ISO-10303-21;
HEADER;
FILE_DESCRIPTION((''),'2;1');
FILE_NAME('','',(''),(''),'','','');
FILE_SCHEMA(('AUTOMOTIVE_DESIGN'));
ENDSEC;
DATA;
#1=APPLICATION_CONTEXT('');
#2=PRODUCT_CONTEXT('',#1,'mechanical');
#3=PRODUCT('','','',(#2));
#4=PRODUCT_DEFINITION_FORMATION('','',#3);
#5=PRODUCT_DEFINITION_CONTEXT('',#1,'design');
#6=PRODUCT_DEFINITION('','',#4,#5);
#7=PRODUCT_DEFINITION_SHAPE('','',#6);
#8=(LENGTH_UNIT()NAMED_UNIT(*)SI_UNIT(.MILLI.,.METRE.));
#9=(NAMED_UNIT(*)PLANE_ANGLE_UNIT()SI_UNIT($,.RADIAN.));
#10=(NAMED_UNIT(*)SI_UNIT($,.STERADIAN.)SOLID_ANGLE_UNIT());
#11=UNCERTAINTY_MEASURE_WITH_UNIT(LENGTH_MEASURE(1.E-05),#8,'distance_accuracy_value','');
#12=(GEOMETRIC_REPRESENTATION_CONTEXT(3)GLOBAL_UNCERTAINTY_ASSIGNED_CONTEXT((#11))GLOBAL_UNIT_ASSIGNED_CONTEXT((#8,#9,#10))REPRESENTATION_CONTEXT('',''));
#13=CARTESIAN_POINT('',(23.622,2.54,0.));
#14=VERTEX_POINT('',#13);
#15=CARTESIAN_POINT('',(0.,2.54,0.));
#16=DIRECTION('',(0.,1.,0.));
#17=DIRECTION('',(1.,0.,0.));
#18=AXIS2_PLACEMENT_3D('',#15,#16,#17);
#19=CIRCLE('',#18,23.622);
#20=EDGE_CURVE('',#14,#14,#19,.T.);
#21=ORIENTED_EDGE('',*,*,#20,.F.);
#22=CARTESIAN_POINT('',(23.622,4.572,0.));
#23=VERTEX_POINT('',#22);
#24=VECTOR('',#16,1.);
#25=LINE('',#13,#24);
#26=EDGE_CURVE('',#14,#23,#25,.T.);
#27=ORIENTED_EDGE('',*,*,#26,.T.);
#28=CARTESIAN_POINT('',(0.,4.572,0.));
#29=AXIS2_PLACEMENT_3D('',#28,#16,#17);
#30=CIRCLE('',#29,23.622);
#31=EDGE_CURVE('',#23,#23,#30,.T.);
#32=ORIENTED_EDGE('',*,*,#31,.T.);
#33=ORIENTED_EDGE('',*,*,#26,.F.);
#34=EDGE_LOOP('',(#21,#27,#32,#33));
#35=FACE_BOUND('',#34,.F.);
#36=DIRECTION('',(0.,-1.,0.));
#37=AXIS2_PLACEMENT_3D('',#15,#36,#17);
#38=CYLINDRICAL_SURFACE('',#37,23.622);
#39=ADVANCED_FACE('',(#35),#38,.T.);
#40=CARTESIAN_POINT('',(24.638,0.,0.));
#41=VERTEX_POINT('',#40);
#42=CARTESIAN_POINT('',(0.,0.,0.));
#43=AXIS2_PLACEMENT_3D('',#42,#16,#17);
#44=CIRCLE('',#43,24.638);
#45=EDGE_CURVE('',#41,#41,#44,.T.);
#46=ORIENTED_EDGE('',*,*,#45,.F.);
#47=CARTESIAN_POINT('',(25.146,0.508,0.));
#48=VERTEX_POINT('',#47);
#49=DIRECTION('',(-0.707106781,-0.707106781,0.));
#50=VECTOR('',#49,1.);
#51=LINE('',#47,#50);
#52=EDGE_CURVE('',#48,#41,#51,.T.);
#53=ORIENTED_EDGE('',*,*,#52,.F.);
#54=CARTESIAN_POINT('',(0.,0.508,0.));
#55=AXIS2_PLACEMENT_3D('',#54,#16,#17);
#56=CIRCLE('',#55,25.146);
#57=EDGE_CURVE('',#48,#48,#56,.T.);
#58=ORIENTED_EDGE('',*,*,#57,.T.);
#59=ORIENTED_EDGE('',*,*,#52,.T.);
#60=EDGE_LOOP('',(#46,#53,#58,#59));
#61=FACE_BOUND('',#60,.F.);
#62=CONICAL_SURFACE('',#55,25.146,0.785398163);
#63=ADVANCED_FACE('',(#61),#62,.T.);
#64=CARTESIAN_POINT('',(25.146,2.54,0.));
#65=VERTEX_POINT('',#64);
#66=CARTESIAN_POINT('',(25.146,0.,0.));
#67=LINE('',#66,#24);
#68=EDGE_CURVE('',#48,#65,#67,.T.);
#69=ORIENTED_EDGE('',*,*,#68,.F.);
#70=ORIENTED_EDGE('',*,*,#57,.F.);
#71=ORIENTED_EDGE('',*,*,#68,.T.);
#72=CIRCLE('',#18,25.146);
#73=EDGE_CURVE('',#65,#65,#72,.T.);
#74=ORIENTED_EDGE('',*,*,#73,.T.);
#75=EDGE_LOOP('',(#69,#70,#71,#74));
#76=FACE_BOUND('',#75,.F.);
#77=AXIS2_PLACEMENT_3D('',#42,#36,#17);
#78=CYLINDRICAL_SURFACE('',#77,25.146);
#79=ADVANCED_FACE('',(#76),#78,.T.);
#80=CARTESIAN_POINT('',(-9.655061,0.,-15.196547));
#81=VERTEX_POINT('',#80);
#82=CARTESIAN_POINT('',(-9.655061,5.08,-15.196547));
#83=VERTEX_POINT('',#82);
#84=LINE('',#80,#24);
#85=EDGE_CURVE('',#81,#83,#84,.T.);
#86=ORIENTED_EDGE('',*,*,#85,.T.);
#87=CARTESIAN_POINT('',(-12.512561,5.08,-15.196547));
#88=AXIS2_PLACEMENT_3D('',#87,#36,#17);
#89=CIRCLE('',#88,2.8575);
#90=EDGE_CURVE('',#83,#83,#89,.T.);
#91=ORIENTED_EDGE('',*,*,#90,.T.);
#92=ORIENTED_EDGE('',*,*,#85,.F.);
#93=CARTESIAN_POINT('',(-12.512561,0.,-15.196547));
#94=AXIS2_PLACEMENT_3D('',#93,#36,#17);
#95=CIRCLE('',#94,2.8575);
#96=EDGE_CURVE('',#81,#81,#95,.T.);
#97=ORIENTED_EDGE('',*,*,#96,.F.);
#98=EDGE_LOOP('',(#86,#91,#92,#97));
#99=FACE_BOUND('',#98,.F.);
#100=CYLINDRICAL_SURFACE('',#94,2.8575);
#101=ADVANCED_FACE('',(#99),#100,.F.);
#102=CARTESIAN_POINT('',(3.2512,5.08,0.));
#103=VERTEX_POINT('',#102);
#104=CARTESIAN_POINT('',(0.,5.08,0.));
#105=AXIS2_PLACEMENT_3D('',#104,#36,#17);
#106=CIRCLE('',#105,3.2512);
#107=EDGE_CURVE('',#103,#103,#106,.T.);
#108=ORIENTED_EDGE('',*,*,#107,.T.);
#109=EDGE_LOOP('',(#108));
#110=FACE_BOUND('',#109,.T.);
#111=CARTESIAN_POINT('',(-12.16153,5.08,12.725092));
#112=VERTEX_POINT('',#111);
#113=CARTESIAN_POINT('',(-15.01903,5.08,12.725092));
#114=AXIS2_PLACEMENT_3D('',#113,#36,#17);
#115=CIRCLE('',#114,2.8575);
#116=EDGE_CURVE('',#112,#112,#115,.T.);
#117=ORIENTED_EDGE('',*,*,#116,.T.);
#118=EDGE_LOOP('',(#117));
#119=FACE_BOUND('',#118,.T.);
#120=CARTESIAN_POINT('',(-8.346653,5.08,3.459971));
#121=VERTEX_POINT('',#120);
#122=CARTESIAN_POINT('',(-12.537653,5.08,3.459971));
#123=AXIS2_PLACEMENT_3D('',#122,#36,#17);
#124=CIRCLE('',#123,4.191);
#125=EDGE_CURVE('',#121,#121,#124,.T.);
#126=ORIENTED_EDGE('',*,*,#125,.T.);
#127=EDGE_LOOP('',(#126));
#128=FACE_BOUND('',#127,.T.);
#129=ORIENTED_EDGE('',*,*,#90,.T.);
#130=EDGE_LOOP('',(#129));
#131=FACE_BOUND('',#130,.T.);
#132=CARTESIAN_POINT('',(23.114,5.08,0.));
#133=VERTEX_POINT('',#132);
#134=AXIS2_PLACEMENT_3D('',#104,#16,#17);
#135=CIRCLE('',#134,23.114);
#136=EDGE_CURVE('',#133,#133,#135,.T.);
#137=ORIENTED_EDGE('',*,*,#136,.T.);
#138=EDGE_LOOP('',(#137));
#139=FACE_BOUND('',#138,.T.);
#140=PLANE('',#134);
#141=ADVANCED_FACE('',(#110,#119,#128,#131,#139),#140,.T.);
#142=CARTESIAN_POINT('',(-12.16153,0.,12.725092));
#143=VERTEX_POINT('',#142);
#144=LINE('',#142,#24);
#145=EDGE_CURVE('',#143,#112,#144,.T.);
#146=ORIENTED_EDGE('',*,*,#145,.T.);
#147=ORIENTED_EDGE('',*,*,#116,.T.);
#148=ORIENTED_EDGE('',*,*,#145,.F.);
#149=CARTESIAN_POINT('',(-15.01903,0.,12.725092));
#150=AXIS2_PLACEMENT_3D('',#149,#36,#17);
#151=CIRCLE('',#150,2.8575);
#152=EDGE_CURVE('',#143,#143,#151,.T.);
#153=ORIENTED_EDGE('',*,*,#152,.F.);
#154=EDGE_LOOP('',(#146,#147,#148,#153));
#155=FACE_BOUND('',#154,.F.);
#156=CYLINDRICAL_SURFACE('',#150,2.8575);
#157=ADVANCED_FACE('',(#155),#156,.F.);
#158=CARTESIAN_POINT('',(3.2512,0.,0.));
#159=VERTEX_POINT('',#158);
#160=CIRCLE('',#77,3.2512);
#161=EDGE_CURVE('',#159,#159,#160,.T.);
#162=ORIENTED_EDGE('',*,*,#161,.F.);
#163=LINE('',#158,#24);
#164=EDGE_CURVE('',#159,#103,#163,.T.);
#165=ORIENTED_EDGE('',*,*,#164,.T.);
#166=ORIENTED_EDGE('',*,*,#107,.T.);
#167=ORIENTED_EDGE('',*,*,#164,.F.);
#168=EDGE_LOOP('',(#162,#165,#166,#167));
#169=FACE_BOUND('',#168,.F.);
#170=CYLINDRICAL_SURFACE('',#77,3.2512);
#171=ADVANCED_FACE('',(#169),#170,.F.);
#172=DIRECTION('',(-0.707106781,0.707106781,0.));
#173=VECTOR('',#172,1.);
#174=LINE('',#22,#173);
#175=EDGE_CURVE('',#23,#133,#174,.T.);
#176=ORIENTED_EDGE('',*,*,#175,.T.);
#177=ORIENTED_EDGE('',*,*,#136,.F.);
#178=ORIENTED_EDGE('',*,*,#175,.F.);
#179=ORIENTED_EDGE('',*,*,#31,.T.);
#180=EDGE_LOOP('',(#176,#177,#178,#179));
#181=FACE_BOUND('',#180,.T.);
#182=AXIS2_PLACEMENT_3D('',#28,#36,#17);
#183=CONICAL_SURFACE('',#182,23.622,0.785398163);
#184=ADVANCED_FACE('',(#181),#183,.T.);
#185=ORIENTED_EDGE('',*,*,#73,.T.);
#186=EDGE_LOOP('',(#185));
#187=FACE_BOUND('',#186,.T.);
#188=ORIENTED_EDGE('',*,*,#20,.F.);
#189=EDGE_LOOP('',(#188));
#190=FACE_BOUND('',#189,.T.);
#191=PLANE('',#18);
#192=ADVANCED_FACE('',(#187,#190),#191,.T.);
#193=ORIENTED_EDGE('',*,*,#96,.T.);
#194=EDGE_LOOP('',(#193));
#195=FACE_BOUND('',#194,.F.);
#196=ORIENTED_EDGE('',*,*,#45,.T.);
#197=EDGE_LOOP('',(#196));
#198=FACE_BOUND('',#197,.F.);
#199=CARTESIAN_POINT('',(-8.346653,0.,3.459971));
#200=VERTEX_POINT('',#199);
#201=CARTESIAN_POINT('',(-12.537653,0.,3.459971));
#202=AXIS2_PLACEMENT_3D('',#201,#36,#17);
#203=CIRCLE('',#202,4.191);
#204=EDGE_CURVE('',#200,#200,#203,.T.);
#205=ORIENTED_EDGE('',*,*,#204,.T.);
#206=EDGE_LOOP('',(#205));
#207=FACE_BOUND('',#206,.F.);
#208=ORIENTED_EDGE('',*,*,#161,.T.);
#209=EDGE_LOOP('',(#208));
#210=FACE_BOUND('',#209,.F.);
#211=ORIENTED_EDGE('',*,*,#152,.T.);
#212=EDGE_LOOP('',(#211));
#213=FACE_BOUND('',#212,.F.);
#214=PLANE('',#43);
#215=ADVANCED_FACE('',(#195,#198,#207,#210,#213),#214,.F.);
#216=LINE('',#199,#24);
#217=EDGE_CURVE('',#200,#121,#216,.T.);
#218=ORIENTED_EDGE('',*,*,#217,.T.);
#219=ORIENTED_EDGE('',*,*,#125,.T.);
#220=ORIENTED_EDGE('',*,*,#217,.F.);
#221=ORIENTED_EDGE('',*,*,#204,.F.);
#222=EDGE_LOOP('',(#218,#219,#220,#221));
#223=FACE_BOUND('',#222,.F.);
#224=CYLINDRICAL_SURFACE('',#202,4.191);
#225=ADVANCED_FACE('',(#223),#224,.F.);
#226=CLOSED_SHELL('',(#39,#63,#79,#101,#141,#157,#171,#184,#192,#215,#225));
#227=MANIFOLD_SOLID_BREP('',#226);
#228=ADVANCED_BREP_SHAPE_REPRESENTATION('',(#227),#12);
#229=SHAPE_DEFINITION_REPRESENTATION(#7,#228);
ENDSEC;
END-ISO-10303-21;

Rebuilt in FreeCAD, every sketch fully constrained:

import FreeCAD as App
import Part
import Sketcher
from FreeCAD import Vector
Q = App.Units.Quantity


def edges_at(feature, points):
    """Names of the edges that pass closest to the given points."""
    edges = feature.Shape.Edges
    near = lambda p: min(range(len(edges)), key=lambda i: edges[i].distToShape(Part.Vertex(*p))[0])
    return sorted({f"Edge{near(p) + 1}" for p in points})

doc = App.newDocument("Part")
params = doc.addObject("Spreadsheet::Sheet", "Params")
for row, (alias, value) in enumerate([
    ("sketch1_diameter", "1.98 in"),
    ("pad1_length", "0.1 in"),
    ("sketch2_diameter", "1.86 in"),
    ("pad2_length", "0.1 in"),
    ("sketch3_diameter", "0.33 in"),
    ("sketch3_diameter2", "0.256 in"),
    ("sketch4_diameter", "0.225 in"),
    ("pocket2_length", "0.2 in"),
    ("chamfer_size", "0.02 in"),
], start=1):
    params.set(f"A{row}", alias)
    params.set(f"B{row}", "=" + value)
    params.setAlias(f"B{row}", alias)

body = doc.addObject("PartDesign::Body", "Body")

# Sketch on XZ plane
sketch1 = doc.addObject("Sketcher::SketchObject", "Sketch")
body.addObject(sketch1)
sketch1.AttachmentSupport = (doc.XZ_Plane, [""])
sketch1.MapMode = "FlatFace"
sketch1.addGeometry(Part.Circle(Vector(0, 0, 0), Vector(0, 0, 1), 25), False)
sketch1.addConstraint([
    Sketcher.Constraint("Coincident", 0, 3, -1, 1),
    Sketcher.Constraint("Diameter", 0, Q("1.98 in")),
])
sketch1.setExpression("Constraints[1]", "Params.sketch1_diameter")
pad1 = doc.addObject("PartDesign::Pad", "Pad")
body.addObject(pad1)
pad1.Profile = sketch1
pad1.setExpression("Length", "Params.pad1_length")
pad1.Reversed = True

# Sketch on XZ plane
sketch2 = doc.addObject("Sketcher::SketchObject", "Sketch001")
body.addObject(sketch2)
sketch2.AttachmentSupport = (doc.XZ_Plane, [""])
sketch2.MapMode = "FlatFace"
sketch2.AttachmentOffset = App.Placement(Vector(0, 0, -0.1 * 25.4), App.Rotation())
sketch2.addGeometry(Part.Circle(Vector(0, 0, 0), Vector(0, 0, 1), 24), False)
sketch2.addConstraint([
    Sketcher.Constraint("Coincident", 0, 3, -1, 1),
    Sketcher.Constraint("Diameter", 0, Q("1.86 in")),
])
sketch2.setExpression("Constraints[1]", "Params.sketch2_diameter")
pad2 = doc.addObject("PartDesign::Pad", "Pad001")
body.addObject(pad2)
pad2.Profile = sketch2
pad2.setExpression("Length", "Params.pad2_length")
pad2.Reversed = True

# Sketch on XZ plane
sketch3 = doc.addObject("Sketcher::SketchObject", "Sketch002")
body.addObject(sketch3)
sketch3.AttachmentSupport = (doc.XZ_Plane, [""])
sketch3.MapMode = "FlatFace"
sketch3.addGeometry([
    Part.Circle(Vector(0, 0, 0), Vector(0, 0, 1), 3.3),
    Part.Circle(Vector(-12.5, 3.5, 0), Vector(0, 0, 1), 4.2),
], False)
sketch3.addConstraint([
    Sketcher.Constraint("Coincident", 0, 3, -1, 1),
    Sketcher.Constraint("Diameter", 1, Q("0.33 in")),
    Sketcher.Constraint("Diameter", 0, Q("0.256 in")),
    Sketcher.Constraint("DistanceY", -1, 1, 1, 3, Q("3.459971 mm")),
    Sketcher.Constraint("DistanceX", 1, 3, -1, 1, Q("12.537653 mm")),
])
sketch3.setExpression("Constraints[1]", "Params.sketch3_diameter")
sketch3.setExpression("Constraints[2]", "Params.sketch3_diameter2")
pocket1 = doc.addObject("PartDesign::Pocket", "Pocket")
body.addObject(pocket1)
pocket1.Profile = sketch3
pocket1.Type = "ThroughAll"
pocket1.Midplane = True

# Sketch on XZ plane
sketch4 = doc.addObject("Sketcher::SketchObject", "Sketch003")
body.addObject(sketch4)
sketch4.AttachmentSupport = (doc.XZ_Plane, [""])
sketch4.MapMode = "FlatFace"
sketch4.addGeometry([
    Part.Circle(Vector(-12.5, -15.2, 0), Vector(0, 0, 1), 2.9),
    Part.Circle(Vector(-15, 12.7, 0), Vector(0, 0, 1), 2.9),
], False)
sketch4.addConstraint([
    Sketcher.Constraint("Equal", 0, 1),
    Sketcher.Constraint("Diameter", 0, Q("0.225 in")),
    Sketcher.Constraint("DistanceX", 0, 3, -1, 1, Q("12.512561 mm")),
    Sketcher.Constraint("DistanceX", 1, 3, -1, 1, Q("15.01903 mm")),
    Sketcher.Constraint("DistanceY", -1, 1, 1, 3, Q("12.725092 mm")),
    Sketcher.Constraint("DistanceY", 0, 3, 1, 3, Q("27.921639 mm")),
])
sketch4.setExpression("Constraints[1]", "Params.sketch4_diameter")
pocket2 = doc.addObject("PartDesign::Pocket", "Pocket001")
body.addObject(pocket2)
pocket2.Profile = sketch4
pocket2.setExpression("Length", "Params.pocket2_length")
doc.recompute()

chamfer = doc.addObject("PartDesign::Chamfer", "Chamfer")
body.addObject(chamfer)
chamfer.Base = (pocket2, edges_at(pocket2, [(-25.146, 0, 0), (-23.622, 5.08, 0)]))
chamfer.setExpression("Size", "Params.chamfer_size")

doc.recompute()
